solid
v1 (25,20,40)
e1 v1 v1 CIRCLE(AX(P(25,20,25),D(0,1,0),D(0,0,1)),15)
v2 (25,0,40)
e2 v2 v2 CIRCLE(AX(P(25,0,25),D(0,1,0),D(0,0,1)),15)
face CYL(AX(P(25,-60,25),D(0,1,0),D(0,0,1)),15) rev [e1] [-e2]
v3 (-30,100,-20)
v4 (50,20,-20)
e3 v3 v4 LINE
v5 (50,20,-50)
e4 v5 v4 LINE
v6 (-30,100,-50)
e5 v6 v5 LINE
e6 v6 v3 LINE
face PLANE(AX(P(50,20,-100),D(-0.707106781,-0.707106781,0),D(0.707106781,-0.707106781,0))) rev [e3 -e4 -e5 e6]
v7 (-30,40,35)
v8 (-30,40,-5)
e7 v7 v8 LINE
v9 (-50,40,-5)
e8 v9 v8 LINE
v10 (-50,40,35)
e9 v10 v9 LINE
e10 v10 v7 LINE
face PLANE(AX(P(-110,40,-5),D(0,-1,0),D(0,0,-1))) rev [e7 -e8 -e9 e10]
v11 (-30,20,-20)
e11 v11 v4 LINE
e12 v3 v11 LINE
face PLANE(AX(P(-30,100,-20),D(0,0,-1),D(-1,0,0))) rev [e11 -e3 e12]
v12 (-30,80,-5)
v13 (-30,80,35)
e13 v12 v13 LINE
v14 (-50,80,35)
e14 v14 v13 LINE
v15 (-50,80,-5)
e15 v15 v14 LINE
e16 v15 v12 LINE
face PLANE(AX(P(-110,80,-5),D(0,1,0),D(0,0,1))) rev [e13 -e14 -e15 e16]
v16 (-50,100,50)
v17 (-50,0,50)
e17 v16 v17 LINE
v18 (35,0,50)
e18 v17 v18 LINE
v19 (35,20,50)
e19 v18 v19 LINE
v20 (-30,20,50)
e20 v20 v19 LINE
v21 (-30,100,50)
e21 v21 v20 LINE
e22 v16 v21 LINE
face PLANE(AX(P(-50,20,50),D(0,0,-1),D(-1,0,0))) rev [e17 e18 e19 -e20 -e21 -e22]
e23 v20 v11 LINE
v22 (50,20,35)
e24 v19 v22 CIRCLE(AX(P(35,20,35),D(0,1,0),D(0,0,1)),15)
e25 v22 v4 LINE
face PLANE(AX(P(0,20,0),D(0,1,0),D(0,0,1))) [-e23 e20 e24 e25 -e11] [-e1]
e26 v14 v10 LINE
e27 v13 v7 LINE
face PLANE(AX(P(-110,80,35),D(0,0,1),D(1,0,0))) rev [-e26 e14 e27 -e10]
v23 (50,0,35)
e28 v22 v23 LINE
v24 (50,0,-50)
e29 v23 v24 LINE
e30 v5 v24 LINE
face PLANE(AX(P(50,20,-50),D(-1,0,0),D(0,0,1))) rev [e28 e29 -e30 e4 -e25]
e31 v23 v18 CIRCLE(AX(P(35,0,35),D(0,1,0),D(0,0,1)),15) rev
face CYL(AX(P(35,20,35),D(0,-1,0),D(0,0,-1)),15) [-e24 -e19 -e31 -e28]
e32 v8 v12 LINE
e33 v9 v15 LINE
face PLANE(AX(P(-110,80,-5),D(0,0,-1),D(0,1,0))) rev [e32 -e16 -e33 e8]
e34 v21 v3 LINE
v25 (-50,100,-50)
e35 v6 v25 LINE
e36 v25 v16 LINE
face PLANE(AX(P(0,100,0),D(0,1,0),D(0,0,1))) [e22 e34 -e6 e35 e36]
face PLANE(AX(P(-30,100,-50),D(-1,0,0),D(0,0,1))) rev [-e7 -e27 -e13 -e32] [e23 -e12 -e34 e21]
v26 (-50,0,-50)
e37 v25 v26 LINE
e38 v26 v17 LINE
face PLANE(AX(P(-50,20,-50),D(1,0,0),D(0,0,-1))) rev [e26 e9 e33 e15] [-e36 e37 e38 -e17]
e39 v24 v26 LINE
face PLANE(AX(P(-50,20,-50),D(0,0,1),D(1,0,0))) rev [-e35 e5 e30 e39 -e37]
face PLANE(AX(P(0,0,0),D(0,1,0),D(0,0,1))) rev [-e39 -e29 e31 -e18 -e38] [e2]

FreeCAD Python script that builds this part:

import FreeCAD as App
import Part
import Sketcher
from FreeCAD import Vector
Q = App.Units.Quantity


def edges_at(feature, points):
    """Names of the edges that pass closest to the given points."""
    edges = feature.Shape.Edges
    near = lambda p: min(range(len(edges)), key=lambda i: edges[i].distToShape(Part.Vertex(*p))[0])
    return sorted({f"Edge{near(p) + 1}" for p in points})


def add_polygon(sketch, points):
    """Adds a closed chain of lines whose ends are joined by coincident constraints."""
    first, n = sketch.GeometryCount, len(points)
    for a, b in zip(points, points[1:] + points[:1]):
        sketch.addGeometry(Part.LineSegment(App.Vector(*a, 0), App.Vector(*b, 0)), False)
    for i in range(n):
        sketch.addConstraint(Sketcher.Constraint("Coincident", first + i, 2, first + (i + 1) % n, 1))

doc = App.newDocument("Part")
body = doc.addObject("PartDesign::Body", "Body")

sketch1 = doc.addObject("Sketcher::SketchObject", "Sketch")
body.addObject(sketch1)
sketch1.AttachmentSupport = (doc.XZ_Plane, [""])
sketch1.MapMode = "FlatFace"
add_polygon(sketch1, [(-50, -50), (-50, 50), (50, 50), (50, -50)])
sketch1.addConstraint([
    Sketcher.Constraint("Vertical", 0),
    Sketcher.Constraint("Horizontal", 1),
    Sketcher.Constraint("Vertical", 2),
    Sketcher.Constraint("Horizontal", 3),
    Sketcher.Constraint("Symmetric", 0, 2, 2, 2, -1, 1),
    Sketcher.Constraint("Equal", 3, 0),
    Sketcher.Constraint("DistanceX", 1, 1, 1, 2, Q("100 mm")),
])
pad1 = doc.addObject("PartDesign::Pad", "Pad")
body.addObject(pad1)
pad1.Profile = sketch1
pad1.Length = 20
pad1.Reversed = True

sketch2 = doc.addObject("Sketcher::SketchObject", "Sketch001")
body.addObject(sketch2)
sketch2.AttachmentSupport = (doc.XZ_Plane, [""])
sketch2.MapMode = "FlatFace"
sketch2.AttachmentOffset = App.Placement(Vector(0, 0, -20), App.Rotation())
add_polygon(sketch2, [(-50, -50), (-50, 50), (-30, 50), (-30, -50)])
sketch2.addConstraint([
    Sketcher.Constraint("Vertical", 0),
    Sketcher.Constraint("Horizontal", 1),
    Sketcher.Constraint("Vertical", 2),
    Sketcher.Constraint("Horizontal", 3),
    Sketcher.Constraint("DistanceX", 1, 1, 1, 2, Q("20 mm")),
    Sketcher.Constraint("DistanceY", 0, 1, 0, 2, Q("100 mm")),
    Sketcher.Constraint("DistanceX", 0, 2, -1, 1, Q("50 mm")),
    Sketcher.Constraint("DistanceY", -1, 1, 0, 2, Q("50 mm")),
])
pad2 = doc.addObject("PartDesign::Pad", "Pad001")
body.addObject(pad2)
pad2.Profile = sketch2
pad2.Length = 80
pad2.Reversed = True

sketch3 = doc.addObject("Sketcher::SketchObject", "Sketch002")
body.addObject(sketch3)
sketch3.AttachmentSupport = (doc.XZ_Plane, [""])
sketch3.MapMode = "FlatFace"
sketch3.AttachmentOffset = App.Placement(Vector(0, 0, -20), App.Rotation())
add_polygon(sketch3, [(-30, -50), (-30, -20), (50, -20), (50, -50)])
sketch3.addConstraint([
    Sketcher.Constraint("Vertical", 0),
    Sketcher.Constraint("Horizontal", 1),
    Sketcher.Constraint("Vertical", 2),
    Sketcher.Constraint("Horizontal", 3),
    Sketcher.Constraint("DistanceX", 1, 1, 1, 2, Q("80 mm")),
    Sketcher.Constraint("DistanceY", 0, 1, 0, 2, Q("30 mm")),
    Sketcher.Constraint("DistanceX", 0, 2, -1, 1, Q("30 mm")),
    Sketcher.Constraint("DistanceY", 0, 2, -1, 1, Q("20 mm")),
])
pad3 = doc.addObject("PartDesign::Pad", "Pad002")
body.addObject(pad3)
pad3.Profile = sketch3
pad3.Length = 80
pad3.Reversed = True

sketch4 = doc.addObject("Sketcher::SketchObject", "Sketch003")
body.addObject(sketch4)
sketch4.AttachmentSupport = (doc.XY_Plane, [""])
sketch4.MapMode = "FlatFace"
sketch4.AttachmentOffset = App.Placement(Vector(0, 0, -20), App.Rotation())
add_polygon(sketch4, [(-30, 100), (50, 20), (50, 100)])
sketch4.addConstraint([
    Sketcher.Constraint("Vertical", 1),
    Sketcher.Constraint("Horizontal", 2),
    Sketcher.Constraint("Equal", 2, 1),
    Sketcher.Constraint("DistanceX", 2, 2, 2, 1, Q("80 mm")),
    Sketcher.Constraint("DistanceX", -1, 1, 0, 2, Q("50 mm")),
    Sketcher.Constraint("DistanceY", -1, 1, 0, 2, Q("20 mm")),
])
pocket1 = doc.addObject("PartDesign::Pocket", "Pocket")
body.addObject(pocket1)
pocket1.Profile = sketch4
pocket1.Length = 80

sketch5 = doc.addObject("Sketcher::SketchObject", "Sketch004")
body.addObject(sketch5)
sketch5.AttachmentSupport = (doc.XZ_Plane, [""])
sketch5.MapMode = "FlatFace"
sketch5.AttachmentOffset = App.Placement(Vector(0, 0, -20), App.Rotation())
sketch5.addGeometry(Part.Circle(Vector(25, 25, 0), Vector(0, 0, 1), 15), False)
sketch5.addConstraint([
    Sketcher.Constraint("Diameter", 0, Q("30 mm")),
    Sketcher.Constraint("DistanceX", -1, 1, 0, 3, Q("25 mm")),
    Sketcher.Constraint("DistanceY", -1, 1, 0, 3, Q("25 mm")),
])
pocket2 = doc.addObject("PartDesign::Pocket", "Pocket001")
body.addObject(pocket2)
pocket2.Profile = sketch5
pocket2.Length = 80
pocket2.Reversed = True
doc.recompute()

fillet = doc.addObject("PartDesign::Fillet", "Fillet")
body.addObject(fillet)
fillet.Base = (pocket2, edges_at(pocket2, [(50, 10, 50)]))
fillet.Radius = 15

sketch6 = doc.addObject("Sketcher::SketchObject", "Sketch005")
body.addObject(sketch6)
sketch6.AttachmentSupport = (doc.YZ_Plane, [""])
sketch6.MapMode = "FlatFace"
sketch6.AttachmentOffset = App.Placement(Vector(0, 0, -30), App.Rotation())
add_polygon(sketch6, [(80, 35), (40, 35), (40, -5), (80, -5)])
sketch6.addConstraint([
    Sketcher.Constraint("Horizontal", 0),
    Sketcher.Constraint("Vertical", 1),
    Sketcher.Constraint("Horizontal", 2),
    Sketcher.Constraint("Vertical", 3),
    Sketcher.Constraint("Equal", 2, 1),
    Sketcher.Constraint("DistanceX", 0, 2, 0, 1, Q("40 mm")),
    Sketcher.Constraint("DistanceX", -1, 1, 0, 2, Q("40 mm")),
    Sketcher.Constraint("DistanceY", -1, 1, 0, 2, Q("35 mm")),
])
pocket3 = doc.addObject("PartDesign::Pocket", "Pocket002")
body.addObject(pocket3)
pocket3.Profile = sketch6
pocket3.Length = 80

doc.recompute()
